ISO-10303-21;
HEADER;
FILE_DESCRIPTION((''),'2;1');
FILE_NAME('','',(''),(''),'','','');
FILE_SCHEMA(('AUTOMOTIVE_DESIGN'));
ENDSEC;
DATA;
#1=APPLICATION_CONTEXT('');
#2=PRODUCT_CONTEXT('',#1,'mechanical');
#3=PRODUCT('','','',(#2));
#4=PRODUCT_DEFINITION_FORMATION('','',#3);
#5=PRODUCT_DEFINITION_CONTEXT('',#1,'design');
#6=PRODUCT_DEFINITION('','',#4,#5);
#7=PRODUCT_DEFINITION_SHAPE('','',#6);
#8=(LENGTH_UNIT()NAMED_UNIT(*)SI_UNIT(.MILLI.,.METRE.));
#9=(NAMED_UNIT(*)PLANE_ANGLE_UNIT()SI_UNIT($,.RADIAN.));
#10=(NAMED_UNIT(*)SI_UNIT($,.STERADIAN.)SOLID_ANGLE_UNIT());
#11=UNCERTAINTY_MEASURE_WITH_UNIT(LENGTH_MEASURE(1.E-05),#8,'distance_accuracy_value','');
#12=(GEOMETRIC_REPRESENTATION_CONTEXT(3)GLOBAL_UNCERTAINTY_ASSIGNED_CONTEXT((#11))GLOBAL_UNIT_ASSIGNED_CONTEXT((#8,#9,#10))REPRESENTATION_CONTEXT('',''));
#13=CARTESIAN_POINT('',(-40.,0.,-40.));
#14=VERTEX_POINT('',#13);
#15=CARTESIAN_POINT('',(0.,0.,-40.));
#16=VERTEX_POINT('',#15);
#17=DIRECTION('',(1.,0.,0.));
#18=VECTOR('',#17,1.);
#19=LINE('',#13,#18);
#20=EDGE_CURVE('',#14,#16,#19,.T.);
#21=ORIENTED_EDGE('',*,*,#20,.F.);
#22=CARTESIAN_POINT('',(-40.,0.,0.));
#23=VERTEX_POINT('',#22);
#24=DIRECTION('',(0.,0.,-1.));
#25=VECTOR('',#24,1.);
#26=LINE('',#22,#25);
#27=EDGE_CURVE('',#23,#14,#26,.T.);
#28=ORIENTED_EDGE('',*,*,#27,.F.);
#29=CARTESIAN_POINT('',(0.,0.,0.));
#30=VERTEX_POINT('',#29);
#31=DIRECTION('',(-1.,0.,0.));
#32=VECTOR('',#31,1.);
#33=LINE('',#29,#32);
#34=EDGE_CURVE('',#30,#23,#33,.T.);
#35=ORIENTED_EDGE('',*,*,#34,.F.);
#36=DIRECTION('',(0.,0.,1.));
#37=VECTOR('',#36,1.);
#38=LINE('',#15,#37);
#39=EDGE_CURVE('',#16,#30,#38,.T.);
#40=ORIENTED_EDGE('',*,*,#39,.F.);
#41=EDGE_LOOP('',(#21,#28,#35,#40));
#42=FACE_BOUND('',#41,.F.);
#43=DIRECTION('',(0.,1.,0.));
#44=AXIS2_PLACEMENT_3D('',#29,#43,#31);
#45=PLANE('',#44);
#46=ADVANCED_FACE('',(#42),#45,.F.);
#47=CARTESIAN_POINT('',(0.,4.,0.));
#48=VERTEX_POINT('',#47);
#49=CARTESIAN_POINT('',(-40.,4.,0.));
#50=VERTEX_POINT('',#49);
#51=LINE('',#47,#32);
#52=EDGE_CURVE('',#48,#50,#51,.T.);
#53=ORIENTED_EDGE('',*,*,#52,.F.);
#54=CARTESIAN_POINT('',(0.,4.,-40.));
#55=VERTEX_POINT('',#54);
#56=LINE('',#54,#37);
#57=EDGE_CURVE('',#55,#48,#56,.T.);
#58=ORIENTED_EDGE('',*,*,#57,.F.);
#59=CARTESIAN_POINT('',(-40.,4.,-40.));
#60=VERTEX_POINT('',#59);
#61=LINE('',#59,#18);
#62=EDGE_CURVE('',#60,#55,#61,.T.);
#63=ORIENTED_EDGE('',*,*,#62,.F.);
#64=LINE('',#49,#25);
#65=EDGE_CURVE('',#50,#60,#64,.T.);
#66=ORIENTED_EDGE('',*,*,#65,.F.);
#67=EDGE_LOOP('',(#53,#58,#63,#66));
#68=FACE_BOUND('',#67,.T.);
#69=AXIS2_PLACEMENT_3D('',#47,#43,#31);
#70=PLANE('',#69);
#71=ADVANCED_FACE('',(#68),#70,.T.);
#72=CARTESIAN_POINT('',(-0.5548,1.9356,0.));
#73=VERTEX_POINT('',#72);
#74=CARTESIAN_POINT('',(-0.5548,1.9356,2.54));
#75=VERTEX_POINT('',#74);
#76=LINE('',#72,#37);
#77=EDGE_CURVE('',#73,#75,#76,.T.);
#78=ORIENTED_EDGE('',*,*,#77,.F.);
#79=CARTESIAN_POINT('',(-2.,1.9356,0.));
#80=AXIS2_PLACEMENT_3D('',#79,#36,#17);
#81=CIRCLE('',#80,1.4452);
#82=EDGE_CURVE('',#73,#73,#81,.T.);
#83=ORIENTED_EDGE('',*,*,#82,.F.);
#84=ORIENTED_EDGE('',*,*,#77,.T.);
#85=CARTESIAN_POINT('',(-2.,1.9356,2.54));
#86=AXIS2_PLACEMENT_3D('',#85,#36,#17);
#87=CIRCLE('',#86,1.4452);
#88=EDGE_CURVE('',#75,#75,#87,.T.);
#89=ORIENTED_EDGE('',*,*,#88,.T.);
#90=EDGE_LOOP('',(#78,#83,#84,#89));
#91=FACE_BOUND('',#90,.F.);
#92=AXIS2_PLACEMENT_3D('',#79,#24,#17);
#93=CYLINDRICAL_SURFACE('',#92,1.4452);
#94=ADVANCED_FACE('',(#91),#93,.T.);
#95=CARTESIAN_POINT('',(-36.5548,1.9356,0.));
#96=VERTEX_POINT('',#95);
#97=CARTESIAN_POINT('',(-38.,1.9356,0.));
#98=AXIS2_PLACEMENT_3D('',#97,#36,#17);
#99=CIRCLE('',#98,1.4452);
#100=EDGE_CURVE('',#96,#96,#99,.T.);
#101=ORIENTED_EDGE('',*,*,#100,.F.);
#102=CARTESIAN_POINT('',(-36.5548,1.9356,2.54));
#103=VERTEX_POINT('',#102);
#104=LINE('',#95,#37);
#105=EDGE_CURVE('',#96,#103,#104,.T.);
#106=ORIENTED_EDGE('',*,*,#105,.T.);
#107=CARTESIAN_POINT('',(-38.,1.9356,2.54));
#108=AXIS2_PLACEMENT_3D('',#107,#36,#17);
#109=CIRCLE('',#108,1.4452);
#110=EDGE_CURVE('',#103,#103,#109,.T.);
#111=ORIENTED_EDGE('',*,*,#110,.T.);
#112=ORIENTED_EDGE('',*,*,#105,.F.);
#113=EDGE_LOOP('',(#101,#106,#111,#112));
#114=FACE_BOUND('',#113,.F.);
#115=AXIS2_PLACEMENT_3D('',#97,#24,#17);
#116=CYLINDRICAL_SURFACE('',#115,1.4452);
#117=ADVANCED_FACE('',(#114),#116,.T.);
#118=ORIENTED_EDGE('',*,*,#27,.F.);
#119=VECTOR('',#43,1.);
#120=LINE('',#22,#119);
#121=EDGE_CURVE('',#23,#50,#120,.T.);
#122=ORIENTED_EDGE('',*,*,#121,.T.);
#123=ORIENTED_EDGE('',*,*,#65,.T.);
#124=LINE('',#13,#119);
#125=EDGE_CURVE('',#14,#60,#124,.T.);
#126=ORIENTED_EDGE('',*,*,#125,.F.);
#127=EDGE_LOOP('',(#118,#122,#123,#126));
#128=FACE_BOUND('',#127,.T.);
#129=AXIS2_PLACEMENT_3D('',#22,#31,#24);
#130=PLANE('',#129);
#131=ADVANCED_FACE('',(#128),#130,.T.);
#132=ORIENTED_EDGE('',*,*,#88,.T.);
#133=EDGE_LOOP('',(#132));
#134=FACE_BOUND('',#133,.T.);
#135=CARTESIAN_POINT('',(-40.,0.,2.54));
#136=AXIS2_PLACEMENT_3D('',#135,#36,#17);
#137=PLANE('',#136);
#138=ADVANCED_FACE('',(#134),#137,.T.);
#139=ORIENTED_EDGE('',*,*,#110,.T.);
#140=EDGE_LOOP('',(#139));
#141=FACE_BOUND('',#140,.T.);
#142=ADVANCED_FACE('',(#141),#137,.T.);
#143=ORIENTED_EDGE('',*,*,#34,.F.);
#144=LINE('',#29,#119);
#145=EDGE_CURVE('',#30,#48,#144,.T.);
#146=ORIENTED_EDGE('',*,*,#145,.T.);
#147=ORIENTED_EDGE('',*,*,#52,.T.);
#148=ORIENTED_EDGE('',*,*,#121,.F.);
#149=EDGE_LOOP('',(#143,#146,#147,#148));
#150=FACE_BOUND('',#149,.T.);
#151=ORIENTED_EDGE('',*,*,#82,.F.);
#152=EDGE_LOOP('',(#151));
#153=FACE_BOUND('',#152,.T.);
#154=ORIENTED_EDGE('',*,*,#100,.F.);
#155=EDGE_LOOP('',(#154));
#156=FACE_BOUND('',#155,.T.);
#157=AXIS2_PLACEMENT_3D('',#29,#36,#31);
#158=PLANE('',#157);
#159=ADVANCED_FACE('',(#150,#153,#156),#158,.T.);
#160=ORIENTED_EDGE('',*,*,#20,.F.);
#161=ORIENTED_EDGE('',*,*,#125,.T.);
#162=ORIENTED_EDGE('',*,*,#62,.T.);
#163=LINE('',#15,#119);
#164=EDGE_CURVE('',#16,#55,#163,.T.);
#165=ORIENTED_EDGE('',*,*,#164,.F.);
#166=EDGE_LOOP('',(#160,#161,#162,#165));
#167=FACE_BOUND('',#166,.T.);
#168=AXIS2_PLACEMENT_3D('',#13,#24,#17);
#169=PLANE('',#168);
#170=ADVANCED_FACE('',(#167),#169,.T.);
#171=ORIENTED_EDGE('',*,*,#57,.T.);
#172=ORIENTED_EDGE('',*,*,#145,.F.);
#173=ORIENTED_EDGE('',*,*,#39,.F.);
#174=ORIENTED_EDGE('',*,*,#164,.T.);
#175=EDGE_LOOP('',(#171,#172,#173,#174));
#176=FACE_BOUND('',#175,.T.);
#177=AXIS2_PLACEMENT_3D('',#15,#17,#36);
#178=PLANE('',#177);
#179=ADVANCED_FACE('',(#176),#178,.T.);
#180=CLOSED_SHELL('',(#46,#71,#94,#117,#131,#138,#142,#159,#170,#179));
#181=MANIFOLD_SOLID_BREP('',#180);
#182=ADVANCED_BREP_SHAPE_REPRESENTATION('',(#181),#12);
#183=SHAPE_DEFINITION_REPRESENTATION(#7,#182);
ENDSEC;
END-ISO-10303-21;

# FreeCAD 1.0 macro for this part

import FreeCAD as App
import Part
import Sketcher
from FreeCAD import Vector
Q = App.Units.Quantity

doc = App.newDocument("Part")
body = doc.addObject("PartDesign::Body", "Body")

# Sketch on XZ plane
sketch1 = doc.addObject("Sketcher::SketchObject", "Sketch")
body.addObject(sketch1)
sketch1.AttachmentSupport = (doc.XZ_Plane, [""])
sketch1.MapMode = "FlatFace"
sketch1.addGeometry(Part.LineSegment(Vector(-40, 0, 0), Vector(0, 0, 0)), False)
sketch1.addGeometry(Part.LineSegment(Vector(0, 0, 0), Vector(0, -40, 0)), False)
sketch1.addGeometry(Part.LineSegment(Vector(0, -40, 0), Vector(-40, -40, 0)), False)
sketch1.addGeometry(Part.LineSegment(Vector(-40, -40, 0), Vector(-40, 0, 0)), False)
sketch1.addConstraint(Sketcher.Constraint("Coincident", 0, 2, 1, 1))
sketch1.addConstraint(Sketcher.Constraint("Coincident", 1, 2, 2, 1))
sketch1.addConstraint(Sketcher.Constraint("Coincident", 2, 2, 3, 1))
sketch1.addConstraint(Sketcher.Constraint("Coincident", 3, 2, 0, 1))
sketch1.addConstraint(Sketcher.Constraint("Horizontal", 0))
sketch1.addConstraint(Sketcher.Constraint("Vertical", 1))
sketch1.addConstraint(Sketcher.Constraint("Horizontal", 2))
sketch1.addConstraint(Sketcher.Constraint("Vertical", 3))
sketch1.addConstraint(Sketcher.Constraint("Coincident", 0, 2, -1, 1))
sketch1.addConstraint(Sketcher.Constraint("Equal", 2, 1))
sketch1.addConstraint(Sketcher.Constraint("DistanceX", 0, 1, 0, 2, Q("40 mm")))
pad1 = doc.addObject("PartDesign::Pad", "Pad")
body.addObject(pad1)
pad1.Profile = sketch1
pad1.Length = 4
pad1.Reversed = True

# Sketch on XY plane
sketch2 = doc.addObject("Sketcher::SketchObject", "Sketch001")
body.addObject(sketch2)
sketch2.AttachmentSupport = (doc.XY_Plane, [""])
sketch2.MapMode = "FlatFace"
sketch2.addGeometry(Part.Circle(Vector(-38, 1.9356, 0), Vector(0, 0, 1), 1.4452), False)
sketch2.addGeometry(Part.Circle(Vector(-2, 1.9356, 0), Vector(0, 0, 1), 1.4452), False)
sketch2.addConstraint(Sketcher.Constraint("Equal", 0, 1))
sketch2.addConstraint(Sketcher.Constraint("Horizontal", 0, 3, 1, 3))
sketch2.addConstraint(Sketcher.Constraint("DistanceX", 1, 3, -1, 1, Q("2 mm")))
sketch2.addConstraint(Sketcher.Constraint("DistanceX", 0, 3, -1, 1, Q("38 mm")))
sketch2.addConstraint(Sketcher.Constraint("Diameter", 0, Q("2.8904 mm")))
sketch2.addConstraint(Sketcher.Constraint("DistanceY", -1, 1, 0, 3, Q("1.9356 mm")))
pad2 = doc.addObject("PartDesign::Pad", "Pad001")
body.addObject(pad2)
pad2.Profile = sketch2
pad2.Length = 2.54

doc.recompute()
